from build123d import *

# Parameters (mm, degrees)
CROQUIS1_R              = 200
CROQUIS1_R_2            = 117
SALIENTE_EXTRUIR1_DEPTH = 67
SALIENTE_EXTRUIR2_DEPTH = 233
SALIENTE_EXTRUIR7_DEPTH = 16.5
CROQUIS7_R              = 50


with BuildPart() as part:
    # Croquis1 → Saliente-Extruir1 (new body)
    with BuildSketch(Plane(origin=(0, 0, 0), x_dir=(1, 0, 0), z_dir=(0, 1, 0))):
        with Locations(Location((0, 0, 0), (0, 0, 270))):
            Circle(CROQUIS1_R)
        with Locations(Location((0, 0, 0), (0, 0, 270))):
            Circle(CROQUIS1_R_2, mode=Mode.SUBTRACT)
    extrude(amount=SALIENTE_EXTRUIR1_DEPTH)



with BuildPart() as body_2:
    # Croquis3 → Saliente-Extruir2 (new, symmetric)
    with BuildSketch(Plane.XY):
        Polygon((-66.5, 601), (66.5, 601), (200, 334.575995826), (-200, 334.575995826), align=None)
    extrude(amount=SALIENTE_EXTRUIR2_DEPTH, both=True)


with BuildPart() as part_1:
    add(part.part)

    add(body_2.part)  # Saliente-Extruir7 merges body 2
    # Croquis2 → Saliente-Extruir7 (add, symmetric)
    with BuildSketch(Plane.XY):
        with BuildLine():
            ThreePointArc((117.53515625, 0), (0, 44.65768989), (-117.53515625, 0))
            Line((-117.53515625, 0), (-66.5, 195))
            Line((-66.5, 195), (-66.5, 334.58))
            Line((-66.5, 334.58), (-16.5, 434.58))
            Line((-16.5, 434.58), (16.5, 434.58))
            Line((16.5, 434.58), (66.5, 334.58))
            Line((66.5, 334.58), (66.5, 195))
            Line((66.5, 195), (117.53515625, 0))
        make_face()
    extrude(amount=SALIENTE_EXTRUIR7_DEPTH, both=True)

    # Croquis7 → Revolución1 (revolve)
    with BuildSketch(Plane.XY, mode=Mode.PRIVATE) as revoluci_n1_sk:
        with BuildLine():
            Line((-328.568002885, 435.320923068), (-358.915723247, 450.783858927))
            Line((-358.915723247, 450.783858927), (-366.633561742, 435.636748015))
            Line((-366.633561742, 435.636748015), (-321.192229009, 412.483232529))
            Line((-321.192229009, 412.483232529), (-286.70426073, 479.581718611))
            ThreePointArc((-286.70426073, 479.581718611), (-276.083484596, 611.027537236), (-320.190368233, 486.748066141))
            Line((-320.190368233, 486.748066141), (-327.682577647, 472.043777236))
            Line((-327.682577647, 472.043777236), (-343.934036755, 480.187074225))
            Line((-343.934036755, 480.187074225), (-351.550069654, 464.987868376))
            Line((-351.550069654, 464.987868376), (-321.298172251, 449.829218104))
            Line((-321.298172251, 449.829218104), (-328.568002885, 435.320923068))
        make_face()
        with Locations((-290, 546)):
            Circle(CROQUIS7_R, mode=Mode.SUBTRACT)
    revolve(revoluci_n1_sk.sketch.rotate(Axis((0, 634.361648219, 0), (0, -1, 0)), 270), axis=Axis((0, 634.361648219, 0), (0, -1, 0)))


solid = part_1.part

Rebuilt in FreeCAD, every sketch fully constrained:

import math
import FreeCAD as App
import Part
import Sketcher
from FreeCAD import Vector
Q = App.Units.Quantity

doc = App.newDocument("Part")
body = doc.addObject("PartDesign::Body", "Body")

sketch1 = doc.addObject("Sketcher::SketchObject", "Sketch")
body.addObject(sketch1)
sketch1.AttachmentSupport = (doc.XZ_Plane, [""])
sketch1.MapMode = "FlatFace"
sketch1.addGeometry(Part.Circle(Vector(0, 0, 0), Vector(0, 0, 1), 200), False)
sketch1.addGeometry(Part.Circle(Vector(0, 0, 0), Vector(0, 0, 1), 117), False)
sketch1.addConstraint(Sketcher.Constraint("Coincident", 0, 3, -1, 1))
sketch1.addConstraint(Sketcher.Constraint("Coincident", 1, 3, -1, 1))
sketch1.addConstraint(Sketcher.Constraint("Diameter", 0, Q("400 mm")))
sketch1.addConstraint(Sketcher.Constraint("Diameter", 1, Q("234 mm")))
pad1 = doc.addObject("PartDesign::Pad", "Pad")
body.addObject(pad1)
pad1.Profile = sketch1
pad1.Length = 67
pad1.Reversed = True
body2 = doc.addObject("PartDesign::Body", "Body001")

sketch2 = doc.addObject("Sketcher::SketchObject", "Sketch001")
body2.addObject(sketch2)
sketch2.AttachmentSupport = (doc.getObject("XY_Plane001"), [""])
sketch2.MapMode = "FlatFace"
sketch2.addGeometry(Part.LineSegment(Vector(66.5, 601, 0), Vector(-66.5, 601, 0)), False)
sketch2.addGeometry(Part.LineSegment(Vector(-66.5, 601, 0), Vector(-200, 334.575996, 0)), False)
sketch2.addGeometry(Part.LineSegment(Vector(-200, 334.575996, 0), Vector(200, 334.575996, 0)), False)
sketch2.addGeometry(Part.LineSegment(Vector(200, 334.575996, 0), Vector(66.5, 601, 0)), False)
sketch2.addConstraint(Sketcher.Constraint("Coincident", 0, 2, 1, 1))
sketch2.addConstraint(Sketcher.Constraint("Coincident", 1, 2, 2, 1))
sketch2.addConstraint(Sketcher.Constraint("Coincident", 2, 2, 3, 1))
sketch2.addConstraint(Sketcher.Constraint("Coincident", 3, 2, 0, 1))
sketch2.addConstraint(Sketcher.Constraint("Horizontal", 0))
sketch2.addConstraint(Sketcher.Constraint("Horizontal", 2))
sketch2.addConstraint(Sketcher.Constraint("Equal", 1, 3))
sketch2.addConstraint(Sketcher.Constraint("DistanceX", 0, 2, 0, 1, Q("133 mm")))
sketch2.addConstraint(Sketcher.Constraint("DistanceX", 2, 1, 2, 2, Q("400 mm")))
sketch2.addConstraint(Sketcher.Constraint("Distance", 1, Q("298 mm")))
sketch2.addConstraint(Sketcher.Constraint("DistanceY", -1, 1, 0, 2, Q("601 mm")))
sketch2.addConstraint(Sketcher.Constraint("DistanceX", 1, 2, -1, 1, Q("200 mm")))
pad2 = doc.addObject("PartDesign::Pad", "Pad001")
body2.addObject(pad2)
pad2.Profile = sketch2
pad2.Length = 466
pad2.Midplane = True
body.AllowCompound = True
doc.recompute()

boolean = doc.addObject("PartDesign::Boolean", "Boolean")
body.addObject(boolean)
boolean.Type = "Fuse"
boolean.addObjects([body2])

sketch3 = doc.addObject("Sketcher::SketchObject", "Sketch002")
body.addObject(sketch3)
sketch3.AttachmentSupport = (doc.XY_Plane, [""])
sketch3.MapMode = "FlatFace"
sketch3.addGeometry(Part.ArcOfCircle(Part.Circle(Vector(0, -132, 0), Vector(0, 0, 1), 177), math.radians(48), math.radians(132)), False)
sketch3.addGeometry(Part.LineSegment(Vector(118, 0, 0), Vector(66, 195, 0)), False)
sketch3.addGeometry(Part.LineSegment(Vector(66, 195, 0), Vector(66, 335, 0)), False)
sketch3.addGeometry(Part.LineSegment(Vector(66, 335, 0), Vector(16, 435, 0)), False)
sketch3.addGeometry(Part.LineSegment(Vector(16, 435, 0), Vector(-16, 435, 0)), False)
sketch3.addGeometry(Part.LineSegment(Vector(-16, 435, 0), Vector(-66, 335, 0)), False)
sketch3.addGeometry(Part.LineSegment(Vector(-66, 335, 0), Vector(-66, 195, 0)), False)
sketch3.addGeometry(Part.LineSegment(Vector(-66, 195, 0), Vector(-118, 0, 0)), False)
sketch3.addConstraint(Sketcher.Constraint("Coincident", 0, 1, 1, 1))
sketch3.addConstraint(Sketcher.Constraint("Coincident", 1, 2, 2, 1))
sketch3.addConstraint(Sketcher.Constraint("Coincident", 2, 2, 3, 1))
sketch3.addConstraint(Sketcher.Constraint("Coincident", 3, 2, 4, 1))
sketch3.addConstraint(Sketcher.Constraint("Coincident", 4, 2, 5, 1))
sketch3.addConstraint(Sketcher.Constraint("Coincident", 5, 2, 6, 1))
sketch3.addConstraint(Sketcher.Constraint("Coincident", 6, 2, 7, 1))
sketch3.addConstraint(Sketcher.Constraint("Coincident", 7, 2, 0, 2))
sketch3.addConstraint(Sketcher.Constraint("Vertical", 2))
sketch3.addConstraint(Sketcher.Constraint("Horizontal", 4))
sketch3.addConstraint(Sketcher.Constraint("Vertical", 6))
sketch3.addConstraint(Sketcher.Constraint("Symmetric", 0, 1, 7, 2, -1, 1))
sketch3.addConstraint(Sketcher.Constraint("Symmetric", 2, 2, 5, 2, -2))
sketch3.addConstraint(Sketcher.Constraint("PointOnObject", 0, 3, -2))
sketch3.addConstraint(Sketcher.Constraint("Horizontal", 1, 2, 6, 2))
sketch3.addConstraint(Sketcher.Constraint("Equal", 3, 5))
sketch3.addConstraint(Sketcher.Constraint("Radius", 0, Q("177 mm")))
sketch3.addConstraint(Sketcher.Constraint("DistanceX", 4, 2, 4, 1, Q("33 mm")))
sketch3.addConstraint(Sketcher.Constraint("DistanceY", -1, 1, 1, 2, Q("195 mm")))
sketch3.addConstraint(Sketcher.Constraint("DistanceX", 3, 2, 2, 2, Q("50 mm")))
sketch3.addConstraint(Sketcher.Constraint("DistanceY", 2, 2, 3, 2, Q("100 mm")))
sketch3.addConstraint(Sketcher.Constraint("DistanceY", 2, 1, 2, 2, Q("139.58 mm")))
sketch3.addConstraint(Sketcher.Constraint("DistanceY", 0, 3, -1, 1, Q("132.34231 mm")))
pad3 = doc.addObject("PartDesign::Pad", "Pad002")
body.addObject(pad3)
pad3.Profile = sketch3
pad3.Length = 33
pad3.Midplane = True

sketch4 = doc.addObject("Sketcher::SketchObject", "Sketch003")
body.addObject(sketch4)
sketch4.AttachmentSupport = (doc.XY_Plane, [""])
sketch4.MapMode = "FlatFace"
sketch4.addGeometry(Part.LineSegment(Vector(-329, 435, 0), Vector(-359, 451, 0)), False)
sketch4.addGeometry(Part.LineSegment(Vector(-359, 451, 0), Vector(-367, 436, 0)), False)
sketch4.addGeometry(Part.LineSegment(Vector(-367, 436, 0), Vector(-321, 412, 0)), False)
sketch4.addGeometry(Part.LineSegment(Vector(-321, 412, 0), Vector(-287, 480, 0)), False)
sketch4.addGeometry(Part.ArcOfCircle(Part.Circle(Vector(-290, 546, 0), Vector(0, 0, 1), 66), math.radians(-87), math.radians(243)), False)
sketch4.addGeometry(Part.LineSegment(Vector(-320, 487, 0), Vector(-328, 472, 0)), False)
sketch4.addGeometry(Part.LineSegment(Vector(-328, 472, 0), Vector(-344, 480, 0)), False)
sketch4.addGeometry(Part.LineSegment(Vector(-344, 480, 0), Vector(-352, 465, 0)), False)
sketch4.addGeometry(Part.LineSegment(Vector(-352, 465, 0), Vector(-321, 450, 0)), False)
sketch4.addGeometry(Part.LineSegment(Vector(-321, 450, 0), Vector(-329, 435, 0)), False)
sketch4.addGeometry(Part.Circle(Vector(-290, 546, 0), Vector(0, 0, 1), 50), False)
sketch4.addConstraint(Sketcher.Constraint("Coincident", 0, 2, 1, 1))
sketch4.addConstraint(Sketcher.Constraint("Coincident", 1, 2, 2, 1))
sketch4.addConstraint(Sketcher.Constraint("Coincident", 2, 2, 3, 1))
sketch4.addConstraint(Sketcher.Constraint("Coincident", 3, 2, 4, 1))
sketch4.addConstraint(Sketcher.Constraint("Coincident", 4, 2, 5, 1))
sketch4.addConstraint(Sketcher.Constraint("Coincident", 5, 2, 6, 1))
sketch4.addConstraint(Sketcher.Constraint("Coincident", 6, 2, 7, 1))
sketch4.addConstraint(Sketcher.Constraint("Coincident", 7, 2, 8, 1))
sketch4.addConstraint(Sketcher.Constraint("Coincident", 8, 2, 9, 1))
sketch4.addConstraint(Sketcher.Constraint("Coincident", 9, 2, 0, 1))
sketch4.addConstraint(Sketcher.Constraint("Coincident", 10, 3, 4, 3))
sketch4.addConstraint(Sketcher.Constraint("Perpendicular", 0, 1))
sketch4.addConstraint(Sketcher.Constraint("Perpendicular", 1, 2))
sketch4.addConstraint(Sketcher.Constraint("Perpendicular", 2, 5))
sketch4.addConstraint(Sketcher.Constraint("Perpendicular", 6, 7))
sketch4.addConstraint(Sketcher.Constraint("Perpendicular", 7, 8))
sketch4.addConstraint(Sketcher.Constraint("Perpendicular", 8, 9))
sketch4.addConstraint(Sketcher.Constraint("Diameter", 10, Q("100 mm")))
sketch4.addConstraint(Sketcher.Constraint("Radius", 4, Q("66.5 mm")))
sketch4.addConstraint(Sketcher.Constraint("Angle", 0, Q("153 deg")))
sketch4.addConstraint(Sketcher.Constraint("Distance", 1, Q("17 mm")))
sketch4.addConstraint(Sketcher.Constraint("Distance", 2, Q("51 mm")))
sketch4.addConstraint(Sketcher.Constraint("DistanceX", 4, 3, -1, 1, Q("290 mm")))
sketch4.addConstraint(Sketcher.Constraint("DistanceY", -1, 1, 4, 3, Q("546 mm")))
sketch4.addConstraint(Sketcher.Constraint("DistanceX", 1, 2, 3, 2, Q("79.929301 mm")))
sketch4.addConstraint(Sketcher.Constraint("DistanceX", 7, 2, 4, 2, Q("31.359701 mm")))
sketch4.addConstraint(Sketcher.Constraint("Distance", 3, Q("75.442871 mm")))
sketch4.addConstraint(Sketcher.Constraint("Distance", 5, Q("16.503009 mm")))
sketch4.addConstraint(Sketcher.Constraint("DistanceY", -1, 1, 0, 2, Q("450.783859 mm")))
sketch4.addConstraint(Sketcher.Constraint("DistanceX", 4, 2, -1, 1, Q("320.190368 mm")))
sketch4.addConstraint(Sketcher.Constraint("DistanceY", -1, 1, 7, 2, Q("464.987868 mm")))
sketch4.addConstraint(Sketcher.Constraint("DistanceY", -1, 1, 8, 2, Q("449.829218 mm")))
sketch4.addConstraint(Sketcher.Constraint("DistanceX", 6, 2, 5, 2, Q("16.251459 mm")))
revolution = doc.addObject("PartDesign::Revolution", "Revolution")
body.addObject(revolution)
revolution.Profile = sketch4
revolution.ReferenceAxis = (sketch4, ["V_Axis"])
revolution.Angle = 360

doc.recompute()
